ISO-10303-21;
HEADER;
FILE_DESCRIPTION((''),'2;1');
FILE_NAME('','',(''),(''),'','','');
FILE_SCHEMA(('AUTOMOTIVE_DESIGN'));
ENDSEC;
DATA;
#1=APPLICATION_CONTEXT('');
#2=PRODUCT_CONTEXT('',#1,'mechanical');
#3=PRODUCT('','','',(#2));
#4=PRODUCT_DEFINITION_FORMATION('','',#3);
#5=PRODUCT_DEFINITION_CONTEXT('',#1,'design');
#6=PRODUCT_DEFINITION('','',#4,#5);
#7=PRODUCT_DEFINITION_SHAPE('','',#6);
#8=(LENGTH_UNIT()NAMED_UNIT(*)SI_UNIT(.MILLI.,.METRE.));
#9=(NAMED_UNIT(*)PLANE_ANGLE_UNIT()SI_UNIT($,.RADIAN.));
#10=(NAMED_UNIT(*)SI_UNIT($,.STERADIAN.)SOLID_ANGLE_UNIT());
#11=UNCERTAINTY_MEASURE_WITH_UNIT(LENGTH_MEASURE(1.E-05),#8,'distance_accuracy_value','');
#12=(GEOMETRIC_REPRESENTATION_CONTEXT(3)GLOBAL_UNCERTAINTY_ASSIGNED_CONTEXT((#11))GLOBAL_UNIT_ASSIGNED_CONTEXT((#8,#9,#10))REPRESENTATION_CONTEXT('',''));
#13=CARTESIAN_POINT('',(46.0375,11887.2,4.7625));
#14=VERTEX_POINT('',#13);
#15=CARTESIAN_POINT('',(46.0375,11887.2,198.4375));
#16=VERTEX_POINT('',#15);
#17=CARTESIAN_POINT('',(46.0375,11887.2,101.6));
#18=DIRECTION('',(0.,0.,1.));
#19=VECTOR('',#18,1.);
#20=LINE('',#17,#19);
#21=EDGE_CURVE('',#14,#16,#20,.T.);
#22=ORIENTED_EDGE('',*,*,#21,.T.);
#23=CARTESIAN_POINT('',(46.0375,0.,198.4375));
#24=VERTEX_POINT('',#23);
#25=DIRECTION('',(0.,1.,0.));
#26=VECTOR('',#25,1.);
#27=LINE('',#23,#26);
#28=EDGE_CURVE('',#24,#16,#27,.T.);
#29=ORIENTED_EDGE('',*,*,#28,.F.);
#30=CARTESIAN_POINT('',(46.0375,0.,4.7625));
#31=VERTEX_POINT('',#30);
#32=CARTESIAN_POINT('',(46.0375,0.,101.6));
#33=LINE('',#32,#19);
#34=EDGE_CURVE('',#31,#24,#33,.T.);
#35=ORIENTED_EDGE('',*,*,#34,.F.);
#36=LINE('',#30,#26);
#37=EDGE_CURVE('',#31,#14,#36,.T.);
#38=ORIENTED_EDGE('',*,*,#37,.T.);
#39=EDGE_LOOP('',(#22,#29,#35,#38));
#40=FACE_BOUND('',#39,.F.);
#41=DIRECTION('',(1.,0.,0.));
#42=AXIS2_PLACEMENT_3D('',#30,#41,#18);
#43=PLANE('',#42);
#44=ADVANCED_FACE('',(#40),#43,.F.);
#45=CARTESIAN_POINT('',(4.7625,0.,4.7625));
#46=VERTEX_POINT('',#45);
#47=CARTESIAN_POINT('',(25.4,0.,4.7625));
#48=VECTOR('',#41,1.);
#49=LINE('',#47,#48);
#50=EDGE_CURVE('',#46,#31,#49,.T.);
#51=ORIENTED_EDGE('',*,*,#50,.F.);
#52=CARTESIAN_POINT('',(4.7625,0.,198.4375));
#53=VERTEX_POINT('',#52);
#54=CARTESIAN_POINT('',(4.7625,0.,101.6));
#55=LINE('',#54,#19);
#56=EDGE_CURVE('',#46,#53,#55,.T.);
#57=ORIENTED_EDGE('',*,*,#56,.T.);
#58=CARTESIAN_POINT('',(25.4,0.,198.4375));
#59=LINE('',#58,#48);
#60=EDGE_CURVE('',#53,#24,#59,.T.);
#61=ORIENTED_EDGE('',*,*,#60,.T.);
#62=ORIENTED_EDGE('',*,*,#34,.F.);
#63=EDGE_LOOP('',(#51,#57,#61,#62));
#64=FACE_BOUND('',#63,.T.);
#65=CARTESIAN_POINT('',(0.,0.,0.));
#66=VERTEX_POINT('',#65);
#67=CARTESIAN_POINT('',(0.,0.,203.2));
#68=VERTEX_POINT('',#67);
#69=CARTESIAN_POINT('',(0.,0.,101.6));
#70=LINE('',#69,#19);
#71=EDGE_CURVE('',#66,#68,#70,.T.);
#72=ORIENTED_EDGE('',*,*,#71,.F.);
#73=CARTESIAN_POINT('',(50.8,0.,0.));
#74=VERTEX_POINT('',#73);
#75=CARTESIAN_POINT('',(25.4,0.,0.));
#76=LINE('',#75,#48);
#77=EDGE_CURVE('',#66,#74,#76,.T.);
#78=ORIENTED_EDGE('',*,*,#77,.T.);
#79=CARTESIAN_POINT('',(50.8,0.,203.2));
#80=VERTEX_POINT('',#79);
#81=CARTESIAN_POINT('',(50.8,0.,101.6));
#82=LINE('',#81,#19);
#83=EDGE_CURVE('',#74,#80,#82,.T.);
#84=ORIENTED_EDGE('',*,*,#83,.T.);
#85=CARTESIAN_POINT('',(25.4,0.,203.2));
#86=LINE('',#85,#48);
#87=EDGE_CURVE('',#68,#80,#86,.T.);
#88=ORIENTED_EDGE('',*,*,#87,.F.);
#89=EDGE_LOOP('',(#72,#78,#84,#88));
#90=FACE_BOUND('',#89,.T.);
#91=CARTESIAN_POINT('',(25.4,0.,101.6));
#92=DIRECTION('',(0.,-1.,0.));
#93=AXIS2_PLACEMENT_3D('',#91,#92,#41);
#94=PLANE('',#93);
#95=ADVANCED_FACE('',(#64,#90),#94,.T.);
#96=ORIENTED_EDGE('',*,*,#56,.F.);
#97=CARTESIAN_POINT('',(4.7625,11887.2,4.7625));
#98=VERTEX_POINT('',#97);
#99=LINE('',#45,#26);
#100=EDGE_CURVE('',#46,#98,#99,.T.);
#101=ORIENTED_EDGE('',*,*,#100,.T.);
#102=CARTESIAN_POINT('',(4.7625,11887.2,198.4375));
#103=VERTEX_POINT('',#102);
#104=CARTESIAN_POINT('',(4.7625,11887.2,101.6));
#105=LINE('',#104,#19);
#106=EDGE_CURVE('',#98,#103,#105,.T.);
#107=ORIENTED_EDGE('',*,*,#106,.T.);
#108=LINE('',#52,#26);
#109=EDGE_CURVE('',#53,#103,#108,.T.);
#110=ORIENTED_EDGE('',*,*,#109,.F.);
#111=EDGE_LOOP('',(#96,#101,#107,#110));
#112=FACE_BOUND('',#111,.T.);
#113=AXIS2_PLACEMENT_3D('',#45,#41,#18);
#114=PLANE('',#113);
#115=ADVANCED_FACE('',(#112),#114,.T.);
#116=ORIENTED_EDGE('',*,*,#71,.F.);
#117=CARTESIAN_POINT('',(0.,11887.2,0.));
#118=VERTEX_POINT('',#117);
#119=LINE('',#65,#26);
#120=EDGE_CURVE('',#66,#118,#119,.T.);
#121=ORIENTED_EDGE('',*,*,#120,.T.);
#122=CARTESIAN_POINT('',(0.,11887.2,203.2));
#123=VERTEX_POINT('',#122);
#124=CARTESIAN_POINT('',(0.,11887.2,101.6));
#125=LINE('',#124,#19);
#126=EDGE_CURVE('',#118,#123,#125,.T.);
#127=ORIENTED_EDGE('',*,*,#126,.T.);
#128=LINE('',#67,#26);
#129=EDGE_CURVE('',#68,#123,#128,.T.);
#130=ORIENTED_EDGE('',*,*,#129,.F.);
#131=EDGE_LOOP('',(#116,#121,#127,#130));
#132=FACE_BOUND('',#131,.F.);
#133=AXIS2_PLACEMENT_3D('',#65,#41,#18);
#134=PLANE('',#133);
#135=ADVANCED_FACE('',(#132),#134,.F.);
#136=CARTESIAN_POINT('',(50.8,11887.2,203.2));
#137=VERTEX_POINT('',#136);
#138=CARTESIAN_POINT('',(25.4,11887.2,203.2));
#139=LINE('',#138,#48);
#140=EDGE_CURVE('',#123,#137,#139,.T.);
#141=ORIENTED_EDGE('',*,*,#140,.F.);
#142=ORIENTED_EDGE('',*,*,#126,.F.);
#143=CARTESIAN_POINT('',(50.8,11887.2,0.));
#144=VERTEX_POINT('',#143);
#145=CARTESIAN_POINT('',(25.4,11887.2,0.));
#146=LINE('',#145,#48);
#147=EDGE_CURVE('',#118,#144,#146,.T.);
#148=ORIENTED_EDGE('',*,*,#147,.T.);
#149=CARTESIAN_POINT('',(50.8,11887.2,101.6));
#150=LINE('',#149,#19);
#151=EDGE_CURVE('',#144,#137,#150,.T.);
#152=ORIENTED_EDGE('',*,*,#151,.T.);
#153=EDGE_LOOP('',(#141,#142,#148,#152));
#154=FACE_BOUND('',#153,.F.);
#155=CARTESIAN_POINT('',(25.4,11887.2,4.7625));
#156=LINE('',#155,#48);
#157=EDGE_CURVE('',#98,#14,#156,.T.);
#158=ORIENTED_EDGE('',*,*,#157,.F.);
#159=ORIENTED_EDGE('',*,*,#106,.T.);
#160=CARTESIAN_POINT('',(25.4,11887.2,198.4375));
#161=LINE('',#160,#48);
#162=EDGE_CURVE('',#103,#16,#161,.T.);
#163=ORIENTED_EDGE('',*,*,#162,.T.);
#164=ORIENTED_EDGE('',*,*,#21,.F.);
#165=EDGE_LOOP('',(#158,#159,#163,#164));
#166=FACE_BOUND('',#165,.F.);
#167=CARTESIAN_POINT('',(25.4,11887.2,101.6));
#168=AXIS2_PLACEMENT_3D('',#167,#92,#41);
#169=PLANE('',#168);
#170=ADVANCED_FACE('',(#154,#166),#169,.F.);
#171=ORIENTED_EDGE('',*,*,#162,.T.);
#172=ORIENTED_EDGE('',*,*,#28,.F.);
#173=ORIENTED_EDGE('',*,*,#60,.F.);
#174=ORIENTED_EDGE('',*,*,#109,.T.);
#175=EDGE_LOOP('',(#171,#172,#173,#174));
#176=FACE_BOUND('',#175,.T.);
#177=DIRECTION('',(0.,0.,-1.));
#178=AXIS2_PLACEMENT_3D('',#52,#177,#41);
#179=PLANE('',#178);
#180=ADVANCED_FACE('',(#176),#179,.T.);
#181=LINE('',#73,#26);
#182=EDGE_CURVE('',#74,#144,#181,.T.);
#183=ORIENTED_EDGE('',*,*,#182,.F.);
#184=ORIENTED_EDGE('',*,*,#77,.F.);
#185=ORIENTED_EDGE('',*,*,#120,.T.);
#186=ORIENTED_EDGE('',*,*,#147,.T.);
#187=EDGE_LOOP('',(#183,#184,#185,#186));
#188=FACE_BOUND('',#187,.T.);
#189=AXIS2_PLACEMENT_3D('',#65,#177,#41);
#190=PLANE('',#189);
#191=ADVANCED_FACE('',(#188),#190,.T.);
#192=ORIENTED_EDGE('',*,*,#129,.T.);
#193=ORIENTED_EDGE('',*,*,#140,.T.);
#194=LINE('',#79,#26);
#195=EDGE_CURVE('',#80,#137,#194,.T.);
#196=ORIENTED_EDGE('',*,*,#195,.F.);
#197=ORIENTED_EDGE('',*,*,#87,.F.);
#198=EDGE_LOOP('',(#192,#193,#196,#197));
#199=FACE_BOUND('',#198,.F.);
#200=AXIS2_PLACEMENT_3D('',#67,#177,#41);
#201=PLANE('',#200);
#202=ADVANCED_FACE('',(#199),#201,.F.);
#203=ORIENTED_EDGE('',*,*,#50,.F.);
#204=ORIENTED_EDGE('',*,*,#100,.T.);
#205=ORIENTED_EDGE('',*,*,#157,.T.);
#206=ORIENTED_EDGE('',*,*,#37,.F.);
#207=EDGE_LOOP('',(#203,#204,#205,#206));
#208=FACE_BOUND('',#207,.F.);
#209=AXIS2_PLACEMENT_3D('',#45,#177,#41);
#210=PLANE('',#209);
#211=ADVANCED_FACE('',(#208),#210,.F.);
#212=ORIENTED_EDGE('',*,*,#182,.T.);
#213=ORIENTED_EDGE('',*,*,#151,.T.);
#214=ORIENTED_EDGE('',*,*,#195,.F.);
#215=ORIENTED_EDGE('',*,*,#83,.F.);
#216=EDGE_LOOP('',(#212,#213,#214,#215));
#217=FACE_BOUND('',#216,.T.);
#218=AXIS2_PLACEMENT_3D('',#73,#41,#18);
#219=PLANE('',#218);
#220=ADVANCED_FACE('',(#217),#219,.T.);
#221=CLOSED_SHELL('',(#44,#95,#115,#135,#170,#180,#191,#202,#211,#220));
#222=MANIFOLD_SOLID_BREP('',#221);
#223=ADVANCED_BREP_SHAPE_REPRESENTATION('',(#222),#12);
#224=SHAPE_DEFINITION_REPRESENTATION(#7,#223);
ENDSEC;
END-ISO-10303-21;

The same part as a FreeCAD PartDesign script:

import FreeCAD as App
import Part
import Sketcher

V = App.Vector
Q = App.Units.Quantity

doc = App.newDocument("Part")
body = doc.addObject("PartDesign::Body", "Body")

sketch1 = doc.addObject("Sketcher::SketchObject", "Sketch")
body.addObject(sketch1)
sketch1.AttachmentSupport = (doc.XZ_Plane, [""])
sketch1.MapMode = "FlatFace"
sketch1.addGeometry([
    Part.LineSegment(V(0, 203, 0), V(0, 0, 0)),
    Part.LineSegment(V(0, 0, 0), V(51, 0, 0)),
    Part.LineSegment(V(51, 0, 0), V(51, 203, 0)),
    Part.LineSegment(V(51, 203, 0), V(0, 203, 0)),
    Part.LineSegment(V(46, 5, 0), V(5, 5, 0)),
    Part.LineSegment(V(5, 5, 0), V(5, 198, 0)),
    Part.LineSegment(V(5, 198, 0), V(46, 198, 0)),
    Part.LineSegment(V(46, 198, 0), V(46, 5, 0)),
], False)
sketch1.addConstraint([
    Sketcher.Constraint("Coincident", 0, 2, 1, 1),
    Sketcher.Constraint("Coincident", 1, 2, 2, 1),
    Sketcher.Constraint("Coincident", 2, 2, 3, 1),
    Sketcher.Constraint("Coincident", 3, 2, 0, 1),
    Sketcher.Constraint("Coincident", 4, 2, 5, 1),
    Sketcher.Constraint("Coincident", 5, 2, 6, 1),
    Sketcher.Constraint("Coincident", 6, 2, 7, 1),
    Sketcher.Constraint("Coincident", 7, 2, 4, 1),
    Sketcher.Constraint("Vertical", 0),
    Sketcher.Constraint("Horizontal", 1),
    Sketcher.Constraint("Vertical", 2),
    Sketcher.Constraint("Horizontal", 3),
    Sketcher.Constraint("Horizontal", 4),
    Sketcher.Constraint("Vertical", 5),
    Sketcher.Constraint("Horizontal", 6),
    Sketcher.Constraint("Vertical", 7),
    Sketcher.Constraint("Coincident", 0, 2, -1, 1),
    Sketcher.Constraint("DistanceX", 1, 1, 1, 2, Q("2 in")),
    Sketcher.Constraint("DistanceY", 0, 2, 0, 1, Q("8 in")),
    Sketcher.Constraint("DistanceX", 4, 2, 4, 1, Q("1.625 in")),
    Sketcher.Constraint("DistanceY", 5, 1, 5, 2, Q("7.625 in")),
    Sketcher.Constraint("DistanceX", -1, 1, 4, 2, Q("0.1875 in")),
    Sketcher.Constraint("DistanceY", -1, 1, 4, 2, Q("0.1875 in")),
])
pad1 = doc.addObject("PartDesign::Pad", "Pad")
body.addObject(pad1)
pad1.Profile = sketch1
pad1.Length = Q("468 in")
pad1.Reversed = True

doc.recompute()
